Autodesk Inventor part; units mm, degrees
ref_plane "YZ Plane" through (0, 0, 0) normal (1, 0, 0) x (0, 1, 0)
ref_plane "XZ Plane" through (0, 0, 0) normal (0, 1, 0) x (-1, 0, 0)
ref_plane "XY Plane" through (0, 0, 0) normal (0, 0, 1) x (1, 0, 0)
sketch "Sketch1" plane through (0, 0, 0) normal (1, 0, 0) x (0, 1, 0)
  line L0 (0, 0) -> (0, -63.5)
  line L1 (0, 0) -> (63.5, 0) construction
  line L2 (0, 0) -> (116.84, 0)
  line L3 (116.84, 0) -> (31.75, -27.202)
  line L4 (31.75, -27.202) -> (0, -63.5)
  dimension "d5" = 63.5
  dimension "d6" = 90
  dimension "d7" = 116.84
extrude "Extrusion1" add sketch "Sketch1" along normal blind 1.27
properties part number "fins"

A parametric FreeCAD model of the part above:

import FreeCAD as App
import Part
import Sketcher

V = App.Vector
Q = App.Units.Quantity


def add_polygon(sketch, points):
    """Adds a closed chain of lines whose ends are joined by coincident constraints."""
    first, n = sketch.GeometryCount, len(points)
    for a, b in zip(points, points[1:] + points[:1]):
        sketch.addGeometry(Part.LineSegment(App.Vector(*a, 0), App.Vector(*b, 0)), False)
    for i in range(n):
        sketch.addConstraint(Sketcher.Constraint("Coincident", first + i, 2, first + (i + 1) % n, 1))

doc = App.newDocument("Part")
body = doc.addObject("PartDesign::Body", "Body")

# Sketch on YZ plane
sketch1 = body.newObject("Sketcher::SketchObject", "Sketch")
sketch1.AttachmentSupport = (doc.getObject("YZ_Plane"), [""])
sketch1.MapMode = "FlatFace"
add_polygon(sketch1, [(117, 0), (0, 0), (0, -64), (32, -27)])  # lines 0-3
sketch1.addConstraint([
    Sketcher.Constraint("Horizontal", 0),
    Sketcher.Constraint("Vertical", 1),
    Sketcher.Constraint("Coincident", 0, 2, -1, 1),
    Sketcher.Constraint("DistanceX", 0, 2, 0, 1, Q("4.6 in")),
    Sketcher.Constraint("DistanceY", 1, 2, 1, 1, Q("2.5 in")),
    Sketcher.Constraint("DistanceX", -1, 1, 2, 2, Q("1.25 in")),
    Sketcher.Constraint("Distance", 2, Q("1.8986 in")),
])
pad1 = body.newObject("PartDesign::Pad", "Pad")
pad1.Profile = sketch1
pad1.Length = Q("0.05 in")

doc.recompute()
